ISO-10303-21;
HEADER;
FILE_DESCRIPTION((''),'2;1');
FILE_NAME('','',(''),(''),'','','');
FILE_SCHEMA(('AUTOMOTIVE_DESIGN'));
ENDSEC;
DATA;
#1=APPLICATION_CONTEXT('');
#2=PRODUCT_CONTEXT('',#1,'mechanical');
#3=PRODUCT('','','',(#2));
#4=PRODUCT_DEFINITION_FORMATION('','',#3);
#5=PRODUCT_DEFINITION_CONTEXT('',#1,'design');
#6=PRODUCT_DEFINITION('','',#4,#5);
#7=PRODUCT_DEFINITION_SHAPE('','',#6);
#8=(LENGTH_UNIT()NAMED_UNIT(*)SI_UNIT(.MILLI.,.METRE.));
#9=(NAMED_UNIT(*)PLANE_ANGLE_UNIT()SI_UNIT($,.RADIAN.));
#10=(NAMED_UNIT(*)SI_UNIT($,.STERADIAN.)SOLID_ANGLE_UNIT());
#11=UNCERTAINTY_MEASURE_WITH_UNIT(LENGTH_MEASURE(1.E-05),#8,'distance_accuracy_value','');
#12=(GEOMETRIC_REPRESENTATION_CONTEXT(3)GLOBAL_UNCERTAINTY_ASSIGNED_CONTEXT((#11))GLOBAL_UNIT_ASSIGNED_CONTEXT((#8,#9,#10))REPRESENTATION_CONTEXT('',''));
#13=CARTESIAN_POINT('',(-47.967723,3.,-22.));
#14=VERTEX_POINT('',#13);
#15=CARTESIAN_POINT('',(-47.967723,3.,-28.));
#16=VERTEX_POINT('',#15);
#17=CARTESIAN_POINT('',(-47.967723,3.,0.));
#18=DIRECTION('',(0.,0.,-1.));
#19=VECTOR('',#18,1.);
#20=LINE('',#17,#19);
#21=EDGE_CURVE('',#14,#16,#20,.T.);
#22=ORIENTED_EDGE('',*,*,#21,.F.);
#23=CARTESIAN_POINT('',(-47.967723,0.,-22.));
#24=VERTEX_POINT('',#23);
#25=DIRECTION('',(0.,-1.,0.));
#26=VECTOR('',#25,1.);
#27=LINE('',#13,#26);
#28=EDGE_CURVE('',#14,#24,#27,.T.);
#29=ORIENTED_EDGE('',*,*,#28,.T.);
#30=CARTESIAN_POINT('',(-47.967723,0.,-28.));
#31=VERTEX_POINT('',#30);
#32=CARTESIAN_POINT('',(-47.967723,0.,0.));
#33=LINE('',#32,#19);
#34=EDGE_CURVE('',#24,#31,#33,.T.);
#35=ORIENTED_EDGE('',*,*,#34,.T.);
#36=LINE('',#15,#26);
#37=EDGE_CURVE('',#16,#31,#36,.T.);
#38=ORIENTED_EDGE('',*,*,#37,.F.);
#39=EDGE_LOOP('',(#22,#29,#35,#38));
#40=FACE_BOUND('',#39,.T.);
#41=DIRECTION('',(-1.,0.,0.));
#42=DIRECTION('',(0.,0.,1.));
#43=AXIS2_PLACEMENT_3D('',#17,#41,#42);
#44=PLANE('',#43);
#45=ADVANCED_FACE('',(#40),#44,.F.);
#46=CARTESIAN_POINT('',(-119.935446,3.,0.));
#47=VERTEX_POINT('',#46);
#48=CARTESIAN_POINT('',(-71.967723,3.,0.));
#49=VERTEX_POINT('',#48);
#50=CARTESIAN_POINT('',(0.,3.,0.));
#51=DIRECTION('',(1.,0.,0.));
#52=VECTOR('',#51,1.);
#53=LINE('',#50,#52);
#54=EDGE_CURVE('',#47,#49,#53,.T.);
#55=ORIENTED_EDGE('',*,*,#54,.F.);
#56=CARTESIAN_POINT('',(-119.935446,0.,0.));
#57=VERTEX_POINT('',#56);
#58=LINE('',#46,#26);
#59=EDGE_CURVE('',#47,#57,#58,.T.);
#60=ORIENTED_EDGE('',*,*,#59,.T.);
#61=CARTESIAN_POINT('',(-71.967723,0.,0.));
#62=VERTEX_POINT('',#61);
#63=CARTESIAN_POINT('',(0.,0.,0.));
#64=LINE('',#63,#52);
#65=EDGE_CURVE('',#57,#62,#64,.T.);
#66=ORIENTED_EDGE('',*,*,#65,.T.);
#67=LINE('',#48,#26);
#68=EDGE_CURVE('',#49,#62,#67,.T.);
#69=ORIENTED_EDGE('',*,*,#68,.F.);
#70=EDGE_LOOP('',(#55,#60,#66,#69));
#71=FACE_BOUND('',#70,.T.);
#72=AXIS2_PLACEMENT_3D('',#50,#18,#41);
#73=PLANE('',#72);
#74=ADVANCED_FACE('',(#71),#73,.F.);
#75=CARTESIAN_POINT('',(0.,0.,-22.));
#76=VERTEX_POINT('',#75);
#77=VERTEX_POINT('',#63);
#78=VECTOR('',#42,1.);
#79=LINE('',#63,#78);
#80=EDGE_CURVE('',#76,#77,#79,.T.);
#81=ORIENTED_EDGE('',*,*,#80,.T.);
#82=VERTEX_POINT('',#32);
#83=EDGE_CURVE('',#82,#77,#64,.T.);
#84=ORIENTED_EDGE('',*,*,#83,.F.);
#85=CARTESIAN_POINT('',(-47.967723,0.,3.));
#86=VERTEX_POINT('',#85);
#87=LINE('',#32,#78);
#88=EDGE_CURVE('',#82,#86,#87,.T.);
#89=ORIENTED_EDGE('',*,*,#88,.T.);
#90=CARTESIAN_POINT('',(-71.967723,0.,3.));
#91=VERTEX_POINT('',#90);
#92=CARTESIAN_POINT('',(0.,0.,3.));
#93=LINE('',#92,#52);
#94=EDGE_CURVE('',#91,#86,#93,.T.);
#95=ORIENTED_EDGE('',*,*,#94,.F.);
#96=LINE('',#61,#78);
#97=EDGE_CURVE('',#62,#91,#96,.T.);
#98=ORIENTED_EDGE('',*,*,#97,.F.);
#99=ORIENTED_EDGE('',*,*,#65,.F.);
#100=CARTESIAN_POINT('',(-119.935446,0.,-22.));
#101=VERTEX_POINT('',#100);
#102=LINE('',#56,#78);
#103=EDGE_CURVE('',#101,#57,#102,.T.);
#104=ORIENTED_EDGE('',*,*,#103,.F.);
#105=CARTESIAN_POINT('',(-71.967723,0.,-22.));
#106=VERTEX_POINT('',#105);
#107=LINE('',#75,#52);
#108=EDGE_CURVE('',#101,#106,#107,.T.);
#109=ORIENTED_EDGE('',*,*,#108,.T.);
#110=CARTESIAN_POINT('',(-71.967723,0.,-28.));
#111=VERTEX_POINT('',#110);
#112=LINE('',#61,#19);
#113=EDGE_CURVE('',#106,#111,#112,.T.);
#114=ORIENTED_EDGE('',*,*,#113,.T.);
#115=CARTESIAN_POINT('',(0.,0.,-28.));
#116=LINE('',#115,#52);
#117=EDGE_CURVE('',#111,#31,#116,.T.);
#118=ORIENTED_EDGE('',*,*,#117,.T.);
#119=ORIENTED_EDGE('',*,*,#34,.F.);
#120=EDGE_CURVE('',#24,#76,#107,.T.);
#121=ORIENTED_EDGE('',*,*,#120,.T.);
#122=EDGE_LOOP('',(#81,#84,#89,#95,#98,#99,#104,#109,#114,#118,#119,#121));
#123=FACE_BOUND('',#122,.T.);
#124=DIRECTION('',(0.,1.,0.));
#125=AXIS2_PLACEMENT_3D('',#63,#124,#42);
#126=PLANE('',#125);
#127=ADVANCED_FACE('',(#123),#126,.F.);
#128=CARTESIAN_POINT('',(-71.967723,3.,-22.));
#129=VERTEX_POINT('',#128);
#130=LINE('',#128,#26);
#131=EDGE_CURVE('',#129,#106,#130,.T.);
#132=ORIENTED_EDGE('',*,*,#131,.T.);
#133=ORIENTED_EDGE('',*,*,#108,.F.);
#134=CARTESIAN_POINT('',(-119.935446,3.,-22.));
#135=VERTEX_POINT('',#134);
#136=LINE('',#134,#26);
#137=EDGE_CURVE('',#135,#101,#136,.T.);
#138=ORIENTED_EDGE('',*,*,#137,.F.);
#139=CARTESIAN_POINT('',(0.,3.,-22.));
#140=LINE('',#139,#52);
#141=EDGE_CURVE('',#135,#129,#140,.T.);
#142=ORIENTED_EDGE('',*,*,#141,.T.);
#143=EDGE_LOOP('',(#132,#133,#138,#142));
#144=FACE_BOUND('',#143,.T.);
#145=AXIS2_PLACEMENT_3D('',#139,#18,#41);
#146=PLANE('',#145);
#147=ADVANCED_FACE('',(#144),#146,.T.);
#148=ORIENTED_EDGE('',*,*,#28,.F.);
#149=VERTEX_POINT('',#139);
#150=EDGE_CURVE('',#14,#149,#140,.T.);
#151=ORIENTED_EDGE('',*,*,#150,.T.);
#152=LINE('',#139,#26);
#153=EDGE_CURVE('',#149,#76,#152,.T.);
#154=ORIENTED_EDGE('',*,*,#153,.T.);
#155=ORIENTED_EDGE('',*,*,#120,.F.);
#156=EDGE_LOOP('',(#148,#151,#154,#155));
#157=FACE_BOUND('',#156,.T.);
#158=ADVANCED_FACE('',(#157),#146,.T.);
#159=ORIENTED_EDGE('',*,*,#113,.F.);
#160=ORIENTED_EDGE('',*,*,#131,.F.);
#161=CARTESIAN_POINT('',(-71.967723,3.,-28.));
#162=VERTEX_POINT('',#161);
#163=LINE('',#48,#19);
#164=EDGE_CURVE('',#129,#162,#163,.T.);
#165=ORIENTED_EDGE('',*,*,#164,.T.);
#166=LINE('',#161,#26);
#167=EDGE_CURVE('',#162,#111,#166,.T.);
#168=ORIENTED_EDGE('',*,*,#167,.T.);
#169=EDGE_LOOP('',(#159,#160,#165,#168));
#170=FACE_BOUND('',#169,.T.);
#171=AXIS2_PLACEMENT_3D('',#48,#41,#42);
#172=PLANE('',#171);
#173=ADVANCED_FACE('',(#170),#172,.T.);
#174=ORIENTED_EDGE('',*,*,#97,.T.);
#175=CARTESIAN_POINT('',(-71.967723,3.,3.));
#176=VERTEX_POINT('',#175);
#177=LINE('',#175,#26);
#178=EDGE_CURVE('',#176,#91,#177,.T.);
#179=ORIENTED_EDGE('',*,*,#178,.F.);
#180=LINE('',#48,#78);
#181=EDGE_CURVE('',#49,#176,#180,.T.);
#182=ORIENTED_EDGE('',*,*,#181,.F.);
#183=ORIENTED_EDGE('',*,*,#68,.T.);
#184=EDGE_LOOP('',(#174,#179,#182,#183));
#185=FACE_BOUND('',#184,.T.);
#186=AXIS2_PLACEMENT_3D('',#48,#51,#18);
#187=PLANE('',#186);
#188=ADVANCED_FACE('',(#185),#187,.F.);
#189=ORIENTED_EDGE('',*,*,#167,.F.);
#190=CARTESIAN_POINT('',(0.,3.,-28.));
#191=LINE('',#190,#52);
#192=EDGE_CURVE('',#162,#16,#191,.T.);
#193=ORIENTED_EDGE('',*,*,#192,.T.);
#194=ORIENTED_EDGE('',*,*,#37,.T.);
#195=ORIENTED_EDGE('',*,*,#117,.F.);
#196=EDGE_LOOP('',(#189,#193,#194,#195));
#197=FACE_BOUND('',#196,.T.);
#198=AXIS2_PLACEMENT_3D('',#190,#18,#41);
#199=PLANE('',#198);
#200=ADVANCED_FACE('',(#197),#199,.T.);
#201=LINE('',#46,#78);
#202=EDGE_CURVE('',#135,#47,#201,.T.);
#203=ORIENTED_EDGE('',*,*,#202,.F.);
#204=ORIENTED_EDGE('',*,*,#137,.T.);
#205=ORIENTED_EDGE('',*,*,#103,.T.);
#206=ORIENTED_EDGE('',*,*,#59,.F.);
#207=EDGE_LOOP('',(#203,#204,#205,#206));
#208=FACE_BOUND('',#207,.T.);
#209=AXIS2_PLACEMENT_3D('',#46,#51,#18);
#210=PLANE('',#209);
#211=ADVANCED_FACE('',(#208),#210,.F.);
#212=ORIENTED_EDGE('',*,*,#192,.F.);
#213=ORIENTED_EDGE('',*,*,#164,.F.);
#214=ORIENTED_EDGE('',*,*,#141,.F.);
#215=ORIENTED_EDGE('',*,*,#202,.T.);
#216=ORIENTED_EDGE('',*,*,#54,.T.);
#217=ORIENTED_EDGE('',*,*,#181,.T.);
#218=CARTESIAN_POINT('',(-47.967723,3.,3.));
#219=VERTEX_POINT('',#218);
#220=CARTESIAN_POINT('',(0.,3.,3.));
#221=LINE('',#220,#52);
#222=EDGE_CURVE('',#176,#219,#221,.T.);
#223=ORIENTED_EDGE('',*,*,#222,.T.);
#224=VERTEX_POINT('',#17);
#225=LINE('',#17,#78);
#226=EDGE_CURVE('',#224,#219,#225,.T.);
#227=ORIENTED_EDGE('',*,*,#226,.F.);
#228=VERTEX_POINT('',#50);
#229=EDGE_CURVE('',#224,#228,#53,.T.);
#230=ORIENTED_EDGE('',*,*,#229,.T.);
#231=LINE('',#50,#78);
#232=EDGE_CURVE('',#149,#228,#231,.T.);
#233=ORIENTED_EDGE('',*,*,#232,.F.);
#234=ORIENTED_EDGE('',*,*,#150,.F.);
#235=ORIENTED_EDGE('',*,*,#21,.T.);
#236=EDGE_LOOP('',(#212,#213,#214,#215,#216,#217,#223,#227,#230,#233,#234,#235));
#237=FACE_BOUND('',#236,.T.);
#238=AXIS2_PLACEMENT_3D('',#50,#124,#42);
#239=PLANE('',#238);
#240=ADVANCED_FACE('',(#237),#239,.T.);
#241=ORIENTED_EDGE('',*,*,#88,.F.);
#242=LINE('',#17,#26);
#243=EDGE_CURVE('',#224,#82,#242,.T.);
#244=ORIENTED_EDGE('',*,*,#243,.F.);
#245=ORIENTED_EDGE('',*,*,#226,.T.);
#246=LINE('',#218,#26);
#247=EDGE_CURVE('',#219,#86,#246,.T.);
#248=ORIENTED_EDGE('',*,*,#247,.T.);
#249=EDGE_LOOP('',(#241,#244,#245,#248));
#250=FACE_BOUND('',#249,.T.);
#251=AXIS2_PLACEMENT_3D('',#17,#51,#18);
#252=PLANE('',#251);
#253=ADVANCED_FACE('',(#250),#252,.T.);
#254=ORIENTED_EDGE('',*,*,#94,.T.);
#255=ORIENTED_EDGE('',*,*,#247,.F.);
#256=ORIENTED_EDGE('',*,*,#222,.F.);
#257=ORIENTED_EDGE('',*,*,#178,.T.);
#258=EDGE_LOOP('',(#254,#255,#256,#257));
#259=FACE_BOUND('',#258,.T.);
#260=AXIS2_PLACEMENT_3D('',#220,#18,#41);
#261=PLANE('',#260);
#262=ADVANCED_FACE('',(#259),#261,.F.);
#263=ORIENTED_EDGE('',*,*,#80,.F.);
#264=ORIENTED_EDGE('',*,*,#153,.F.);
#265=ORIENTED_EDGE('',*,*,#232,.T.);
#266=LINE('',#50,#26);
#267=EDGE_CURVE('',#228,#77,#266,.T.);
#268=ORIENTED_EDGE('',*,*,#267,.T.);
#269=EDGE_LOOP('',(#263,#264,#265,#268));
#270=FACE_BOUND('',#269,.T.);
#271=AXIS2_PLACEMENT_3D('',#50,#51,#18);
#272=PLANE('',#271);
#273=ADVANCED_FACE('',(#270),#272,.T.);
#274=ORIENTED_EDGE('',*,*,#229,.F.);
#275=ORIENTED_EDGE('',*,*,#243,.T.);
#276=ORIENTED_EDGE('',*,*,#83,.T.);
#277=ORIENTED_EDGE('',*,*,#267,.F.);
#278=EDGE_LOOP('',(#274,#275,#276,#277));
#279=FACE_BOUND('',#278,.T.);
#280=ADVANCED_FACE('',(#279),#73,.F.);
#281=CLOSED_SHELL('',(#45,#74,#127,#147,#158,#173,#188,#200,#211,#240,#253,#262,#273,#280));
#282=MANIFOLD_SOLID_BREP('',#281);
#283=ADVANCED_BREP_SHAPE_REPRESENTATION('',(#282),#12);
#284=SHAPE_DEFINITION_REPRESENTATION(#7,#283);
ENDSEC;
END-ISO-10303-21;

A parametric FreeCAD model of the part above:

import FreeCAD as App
import Part
import Sketcher

V = App.Vector

doc = App.newDocument("Part")
body = doc.addObject("PartDesign::Body", "Body")

# Sketch on XZ plane
sketch1 = body.newObject("Sketcher::SketchObject", "Sketch")
sketch1.AttachmentSupport = (doc.getObject("XZ_Plane"), [""])
sketch1.MapMode = "FlatFace"
sketch1.addGeometry([
    Part.LineSegment(V(-71.967723, 0, 0), V(-71.967723, 3, 0)),  # 0
    Part.LineSegment(V(-71.967723, 3, 0), V(-47.967723, 3, 0)),  # 1
    Part.LineSegment(V(-47.967723, 3, 0), V(-47.967723, 0, 0)),  # 2
    Part.LineSegment(V(-47.967723, 0, 0), V(0, 0, 0)),  # 3
    Part.LineSegment(V(0, 0, 0), V(0, -22, 0)),  # 4
    Part.LineSegment(V(0, -22, 0), V(-47.967723, -22, 0)),  # 5
    Part.LineSegment(V(-47.967723, -22, 0), V(-47.967723, -28, 0)),  # 6
    Part.LineSegment(V(-47.967723, -28, 0), V(-71.967723, -28, 0)),  # 7
    Part.LineSegment(V(-71.967723, -28, 0), V(-71.967723, -22, 0)),  # 8
    Part.LineSegment(V(-71.967723, -22, 0), V(-119.935446, -22, 0)),  # 9
    Part.LineSegment(V(-119.935446, -22, 0), V(-119.935446, 0, 0)),  # 10
    Part.LineSegment(V(-119.935446, 0, 0), V(-71.967723, 0, 0)),  # 11
], False)
sketch1.addConstraint([
    Sketcher.Constraint("Coincident", 0, 2, 1, 1),
    Sketcher.Constraint("Coincident", 1, 2, 2, 1),
    Sketcher.Constraint("Coincident", 2, 2, 3, 1),
    Sketcher.Constraint("Coincident", 3, 2, 4, 1),
    Sketcher.Constraint("Coincident", 4, 2, 5, 1),
    Sketcher.Constraint("Coincident", 5, 2, 6, 1),
    Sketcher.Constraint("Coincident", 6, 2, 7, 1),
    Sketcher.Constraint("Coincident", 7, 2, 8, 1),
    Sketcher.Constraint("Coincident", 8, 2, 9, 1),
    Sketcher.Constraint("Coincident", 9, 2, 10, 1),
    Sketcher.Constraint("Coincident", 10, 2, 11, 1),
    Sketcher.Constraint("Coincident", 11, 2, 0, 1),
    Sketcher.Constraint("Vertical", 0),
    Sketcher.Constraint("Horizontal", 1),
    Sketcher.Constraint("Vertical", 2),
    Sketcher.Constraint("Horizontal", 3),
    Sketcher.Constraint("Vertical", 4),
    Sketcher.Constraint("Horizontal", 5),
    Sketcher.Constraint("Vertical", 6),
    Sketcher.Constraint("Horizontal", 7),
    Sketcher.Constraint("Vertical", 8),
    Sketcher.Constraint("Horizontal", 9),
    Sketcher.Constraint("Vertical", 10),
    Sketcher.Constraint("Horizontal", 11),
    Sketcher.Constraint("Coincident", 3, 2, -1, 1),
    Sketcher.Constraint("PointOnObject", 10, 2, -1),
    Sketcher.Constraint("Horizontal", 5, 2, 8, 2),
    Sketcher.Constraint("Vertical", 2, 2, 5, 2),
    Sketcher.Constraint("Vertical", 0, 2, 7, 2),
    Sketcher.Constraint("Equal", 5, 9),
    Sketcher.Constraint("DistanceX", 1, 1, 1, 2, 24.0),
    Sketcher.Constraint("DistanceY", 0, 1, 0, 2, 3.0),
    Sketcher.Constraint("DistanceY", 4, 2, 4, 1, 22.0),
    Sketcher.Constraint("DistanceY", 6, 2, 6, 1, 6.0),
    Sketcher.Constraint("DistanceX", 3, 1, 3, 2, 47.967723),
])
pad1 = body.newObject("PartDesign::Pad", "Pad")
pad1.Profile = sketch1
pad1.Length = 3
pad1.Reversed = True

doc.recompute()
